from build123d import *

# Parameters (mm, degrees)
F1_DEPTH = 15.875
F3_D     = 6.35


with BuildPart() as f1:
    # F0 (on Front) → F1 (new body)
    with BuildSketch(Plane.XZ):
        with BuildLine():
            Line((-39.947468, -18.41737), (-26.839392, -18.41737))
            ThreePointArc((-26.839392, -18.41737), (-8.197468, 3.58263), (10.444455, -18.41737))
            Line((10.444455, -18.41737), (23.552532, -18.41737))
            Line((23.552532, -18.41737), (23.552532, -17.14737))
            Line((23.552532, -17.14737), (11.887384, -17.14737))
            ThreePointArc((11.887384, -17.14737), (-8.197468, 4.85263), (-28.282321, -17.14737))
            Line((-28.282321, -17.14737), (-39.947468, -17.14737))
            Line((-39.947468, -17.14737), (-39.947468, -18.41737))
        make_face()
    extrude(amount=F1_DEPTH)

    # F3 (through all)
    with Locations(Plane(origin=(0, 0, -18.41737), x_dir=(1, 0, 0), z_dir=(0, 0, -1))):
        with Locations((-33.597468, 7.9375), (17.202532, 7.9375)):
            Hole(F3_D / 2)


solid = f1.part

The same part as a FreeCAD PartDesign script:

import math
import FreeCAD as App
import Part
import Sketcher
from FreeCAD import Vector
Q = App.Units.Quantity

doc = App.newDocument("Part")
params = doc.addObject("Spreadsheet::Sheet", "Params")
for row, (alias, value) in enumerate([
    ("sketch1_height", "0.05 in"),
    ("pad1_length", "0.625 in"),
    ("sketch2_diameter", "0.25 in"),
    ("hole_diameter", "0.25 in"),
], start=1):
    params.set(f"A{row}", alias)
    params.set(f"B{row}", "=" + value)
    params.setAlias(f"B{row}", alias)

body = doc.addObject("PartDesign::Body", "Body")

# Sketch on XZ plane
sketch1 = doc.addObject("Sketcher::SketchObject", "Sketch")
body.addObject(sketch1)
sketch1.AttachmentSupport = (doc.XZ_Plane, [""])
sketch1.MapMode = "FlatFace"
sketch1.addGeometry(Part.LineSegment(Vector(-39.947468, -18.41737, 0), Vector(-26.839392, -18.41737, 0)), False)
sketch1.addGeometry(Part.ArcOfCircle(Part.Circle(Vector(-8.197468, -15.315582, 0), Vector(0, 0, 1), 18.898212), math.radians(-9.446775), math.radians(189.446775)), False)
sketch1.addGeometry(Part.LineSegment(Vector(10.444455, -18.41737, 0), Vector(23.552532, -18.41737, 0)), False)
sketch1.addGeometry(Part.LineSegment(Vector(23.552532, -18.41737, 0), Vector(23.552532, -17.14737, 0)), False)
sketch1.addGeometry(Part.LineSegment(Vector(23.552532, -17.14737, 0), Vector(11.887384, -17.14737, 0)), False)
sketch1.addGeometry(Part.ArcOfCircle(Part.Circle(Vector(-8.197468, -15.315581, 0), Vector(0, 0, 1), 20.168211), math.radians(-5.211101), math.radians(185.211101)), False)
sketch1.addGeometry(Part.LineSegment(Vector(-28.282321, -17.14737, 0), Vector(-39.947468, -17.14737, 0)), False)
sketch1.addGeometry(Part.LineSegment(Vector(-39.947468, -17.14737, 0), Vector(-39.947468, -18.41737, 0)), False)
sketch1.addConstraint(Sketcher.Constraint("Coincident", 0, 2, 1, 2))
sketch1.addConstraint(Sketcher.Constraint("Coincident", 1, 1, 2, 1))
sketch1.addConstraint(Sketcher.Constraint("Coincident", 2, 2, 3, 1))
sketch1.addConstraint(Sketcher.Constraint("Coincident", 3, 2, 4, 1))
sketch1.addConstraint(Sketcher.Constraint("Coincident", 4, 2, 5, 1))
sketch1.addConstraint(Sketcher.Constraint("Coincident", 5, 2, 6, 1))
sketch1.addConstraint(Sketcher.Constraint("Coincident", 6, 2, 7, 1))
sketch1.addConstraint(Sketcher.Constraint("Coincident", 7, 2, 0, 1))
sketch1.addConstraint(Sketcher.Constraint("Horizontal", 0))
sketch1.addConstraint(Sketcher.Constraint("Horizontal", 2))
sketch1.addConstraint(Sketcher.Constraint("Vertical", 3))
sketch1.addConstraint(Sketcher.Constraint("Horizontal", 4))
sketch1.addConstraint(Sketcher.Constraint("Horizontal", 6))
sketch1.addConstraint(Sketcher.Constraint("Vertical", 7))
sketch1.addConstraint(Sketcher.Constraint("Coincident", 5, 3, 1, 3))
sketch1.addConstraint(Sketcher.Constraint("Horizontal", 0, 2, 1, 1))
sketch1.addConstraint(Sketcher.Constraint("Horizontal", 4, 2, 5, 2))
sketch1.addConstraint(Sketcher.Constraint("Equal", 0, 2))
sketch1.addConstraint(Sketcher.Constraint("DistanceY", 3, 1, 3, 2, Q("0.05 in")))
sketch1.addConstraint(Sketcher.Constraint("DistanceX", 1, 3, 2, 2, Q("1.25 in")))
sketch1.addConstraint(Sketcher.Constraint("Radius", 1, Q("18.898212 mm")))
sketch1.addConstraint(Sketcher.Constraint("Radius", 5, Q("20.168211 mm")))
sketch1.addConstraint(Sketcher.Constraint("DistanceX", 0, 1, 0, 2, Q("13.108076 mm")))
sketch1.addConstraint(Sketcher.Constraint("DistanceX", 1, 3, -1, 1, Q("8.197468 mm")))
sketch1.addConstraint(Sketcher.Constraint("DistanceY", 1, 3, -1, 1, Q("15.315582 mm")))
sketch1.setExpression("Constraints[18]", "Params.sketch1_height")
pad1 = doc.addObject("PartDesign::Pad", "Pad")
body.addObject(pad1)
pad1.Profile = sketch1
pad1.setExpression("Length", "Params.pad1_length")

# Sketch on XY plane
sketch2 = doc.addObject("Sketcher::SketchObject", "Sketch001")
body.addObject(sketch2)
sketch2.AttachmentSupport = (doc.XY_Plane, [""])
sketch2.MapMode = "FlatFace"
sketch2.AttachmentOffset = App.Placement(Vector(0, 0, -18.41737), App.Rotation())
sketch2.addGeometry(Part.Circle(Vector(-33.597468, -7.9375, 0), Vector(0, 0, 1), 3.175), False)
sketch2.addGeometry(Part.Circle(Vector(17.202532, -7.9375, 0), Vector(0, 0, 1), 3.175), False)
sketch2.addConstraint(Sketcher.Constraint("Equal", 0, 1))
sketch2.addConstraint(Sketcher.Constraint("Horizontal", 0, 3, 1, 3))
sketch2.addConstraint(Sketcher.Constraint("Diameter", 0, Q("0.25 in")))
sketch2.addConstraint(Sketcher.Constraint("DistanceX", 0, 3, 1, 3, Q("2 in")))
sketch2.addConstraint(Sketcher.Constraint("DistanceY", 0, 3, -1, 1, Q("0.3125 in")))
sketch2.addConstraint(Sketcher.Constraint("DistanceX", 0, 3, -1, 1, Q("33.597468 mm")))
sketch2.setExpression("Constraints[2]", "Params.sketch2_diameter")
doc.recompute()
hole = doc.addObject("PartDesign::Hole", "Hole")
body.addObject(hole)
hole.Profile = sketch2
hole.ThreadType = "None"
hole.setExpression("Diameter", "Params.hole_diameter")
hole.DepthType = "ThroughAll"
hole.Reversed = True

doc.recompute()
